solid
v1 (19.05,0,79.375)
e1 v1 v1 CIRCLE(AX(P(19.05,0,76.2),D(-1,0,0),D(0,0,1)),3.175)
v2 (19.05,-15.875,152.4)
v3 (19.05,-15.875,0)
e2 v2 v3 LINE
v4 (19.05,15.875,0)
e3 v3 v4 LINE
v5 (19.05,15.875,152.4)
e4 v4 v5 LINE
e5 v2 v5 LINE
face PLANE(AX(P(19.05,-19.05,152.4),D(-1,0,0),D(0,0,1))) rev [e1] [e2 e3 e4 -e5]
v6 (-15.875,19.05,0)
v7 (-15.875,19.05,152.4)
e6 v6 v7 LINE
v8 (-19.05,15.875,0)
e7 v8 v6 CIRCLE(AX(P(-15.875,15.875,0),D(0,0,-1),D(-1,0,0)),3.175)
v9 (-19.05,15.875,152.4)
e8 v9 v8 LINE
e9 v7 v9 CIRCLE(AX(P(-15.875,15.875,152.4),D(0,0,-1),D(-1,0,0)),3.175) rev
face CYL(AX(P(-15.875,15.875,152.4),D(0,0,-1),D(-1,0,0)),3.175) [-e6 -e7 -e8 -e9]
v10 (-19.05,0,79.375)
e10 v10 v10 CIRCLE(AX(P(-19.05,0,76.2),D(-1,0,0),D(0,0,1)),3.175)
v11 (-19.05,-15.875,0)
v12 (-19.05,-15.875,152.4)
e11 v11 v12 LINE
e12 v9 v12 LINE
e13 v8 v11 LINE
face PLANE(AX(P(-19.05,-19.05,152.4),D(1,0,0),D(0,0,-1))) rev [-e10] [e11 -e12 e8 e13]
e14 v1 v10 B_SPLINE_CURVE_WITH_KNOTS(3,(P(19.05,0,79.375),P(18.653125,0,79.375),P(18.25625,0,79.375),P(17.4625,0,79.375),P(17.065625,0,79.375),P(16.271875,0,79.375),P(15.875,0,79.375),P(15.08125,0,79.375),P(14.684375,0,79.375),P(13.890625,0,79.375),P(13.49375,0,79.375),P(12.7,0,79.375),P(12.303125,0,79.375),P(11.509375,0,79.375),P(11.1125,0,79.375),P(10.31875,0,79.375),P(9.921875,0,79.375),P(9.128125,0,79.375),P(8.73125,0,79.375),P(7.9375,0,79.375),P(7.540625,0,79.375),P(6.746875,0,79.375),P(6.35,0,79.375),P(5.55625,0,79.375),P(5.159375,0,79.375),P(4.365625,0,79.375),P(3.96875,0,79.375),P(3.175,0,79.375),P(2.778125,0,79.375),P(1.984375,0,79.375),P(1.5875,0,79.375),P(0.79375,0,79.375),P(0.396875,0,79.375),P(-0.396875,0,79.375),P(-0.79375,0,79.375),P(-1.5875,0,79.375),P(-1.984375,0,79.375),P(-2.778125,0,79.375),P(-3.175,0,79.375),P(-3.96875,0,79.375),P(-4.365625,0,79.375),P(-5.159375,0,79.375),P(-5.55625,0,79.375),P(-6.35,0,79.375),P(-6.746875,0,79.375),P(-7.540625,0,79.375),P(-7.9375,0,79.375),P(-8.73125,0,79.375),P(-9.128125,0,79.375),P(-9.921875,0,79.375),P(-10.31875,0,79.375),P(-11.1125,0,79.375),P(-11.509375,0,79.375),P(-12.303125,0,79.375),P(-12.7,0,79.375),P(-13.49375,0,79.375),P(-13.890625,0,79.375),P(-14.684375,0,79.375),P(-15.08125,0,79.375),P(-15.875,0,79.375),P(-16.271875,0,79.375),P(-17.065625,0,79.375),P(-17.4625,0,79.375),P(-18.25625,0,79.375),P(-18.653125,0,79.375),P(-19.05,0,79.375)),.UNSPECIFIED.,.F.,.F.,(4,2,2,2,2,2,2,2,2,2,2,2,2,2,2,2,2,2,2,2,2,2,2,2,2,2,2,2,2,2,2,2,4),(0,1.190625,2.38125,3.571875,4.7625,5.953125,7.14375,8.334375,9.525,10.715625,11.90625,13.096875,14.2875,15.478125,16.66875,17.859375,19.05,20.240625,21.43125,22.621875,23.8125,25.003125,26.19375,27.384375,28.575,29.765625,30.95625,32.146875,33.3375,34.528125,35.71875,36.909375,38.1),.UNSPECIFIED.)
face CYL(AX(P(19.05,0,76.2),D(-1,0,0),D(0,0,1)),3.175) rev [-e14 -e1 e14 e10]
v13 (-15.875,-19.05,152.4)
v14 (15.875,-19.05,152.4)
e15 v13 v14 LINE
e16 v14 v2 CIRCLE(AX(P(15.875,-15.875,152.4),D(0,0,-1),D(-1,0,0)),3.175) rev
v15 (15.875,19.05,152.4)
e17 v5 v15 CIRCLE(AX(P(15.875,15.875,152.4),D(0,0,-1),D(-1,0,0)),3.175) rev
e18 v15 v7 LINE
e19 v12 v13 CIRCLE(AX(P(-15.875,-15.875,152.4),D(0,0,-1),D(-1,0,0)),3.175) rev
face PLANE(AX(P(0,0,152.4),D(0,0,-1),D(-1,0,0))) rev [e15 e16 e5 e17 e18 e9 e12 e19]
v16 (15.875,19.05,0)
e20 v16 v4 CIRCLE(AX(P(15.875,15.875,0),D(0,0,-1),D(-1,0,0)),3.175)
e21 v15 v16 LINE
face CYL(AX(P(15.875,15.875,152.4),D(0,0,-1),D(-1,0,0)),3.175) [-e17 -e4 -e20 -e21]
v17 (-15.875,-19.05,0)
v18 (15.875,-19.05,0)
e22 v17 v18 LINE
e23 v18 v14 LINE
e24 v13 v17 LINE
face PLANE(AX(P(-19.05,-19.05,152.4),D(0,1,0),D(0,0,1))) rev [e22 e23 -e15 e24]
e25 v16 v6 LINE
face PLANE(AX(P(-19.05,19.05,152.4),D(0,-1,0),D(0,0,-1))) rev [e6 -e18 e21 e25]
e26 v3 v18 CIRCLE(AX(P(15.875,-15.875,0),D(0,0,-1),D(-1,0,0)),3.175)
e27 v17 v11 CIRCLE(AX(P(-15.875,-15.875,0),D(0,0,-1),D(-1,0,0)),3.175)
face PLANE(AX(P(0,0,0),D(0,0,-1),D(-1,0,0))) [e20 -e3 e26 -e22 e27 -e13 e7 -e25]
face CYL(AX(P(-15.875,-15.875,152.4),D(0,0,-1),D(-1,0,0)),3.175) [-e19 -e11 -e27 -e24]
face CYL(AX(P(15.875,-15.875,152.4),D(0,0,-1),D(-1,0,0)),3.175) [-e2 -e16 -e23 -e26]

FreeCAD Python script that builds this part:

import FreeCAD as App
import Part
import Sketcher
Q = App.Units.Quantity


def edges_at(feature, points):
    """Names of the edges that pass closest to the given points."""
    edges = feature.Shape.Edges
    near = lambda p: min(range(len(edges)), key=lambda i: edges[i].distToShape(Part.Vertex(*p))[0])
    return sorted({f"Edge{near(p) + 1}" for p in points})

doc = App.newDocument("Part")
body = doc.addObject("PartDesign::Body", "Body")

# Sketch on XY plane
sketch1 = body.newObject("Sketcher::SketchObject", "Sketch")
sketch1.AttachmentSupport = (doc.getObject("XY_Plane"), [""])
sketch1.MapMode = "FlatFace"
sketch1.addGeometry([
    Part.LineSegment(App.Vector(-19, 19, 0), App.Vector(-19, -19, 0)),
    Part.LineSegment(App.Vector(-19, -19, 0), App.Vector(19, -19, 0)),
    Part.LineSegment(App.Vector(19, -19, 0), App.Vector(19, 19, 0)),
    Part.LineSegment(App.Vector(19, 19, 0), App.Vector(-19, 19, 0)),
], False)
sketch1.addConstraint([
    Sketcher.Constraint("Coincident", 0, 2, 1, 1),
    Sketcher.Constraint("Coincident", 1, 2, 2, 1),
    Sketcher.Constraint("Coincident", 2, 2, 3, 1),
    Sketcher.Constraint("Coincident", 3, 2, 0, 1),
    Sketcher.Constraint("Vertical", 0),
    Sketcher.Constraint("Horizontal", 1),
    Sketcher.Constraint("Vertical", 2),
    Sketcher.Constraint("Horizontal", 3),
    Sketcher.Constraint("Symmetric", 0, 2, 2, 2, -1, 1),
    Sketcher.Constraint("Equal", 3, 0),
    Sketcher.Constraint("DistanceX", 1, 1, 1, 2, Q("1.5 in")),
])
pad1 = body.newObject("PartDesign::Pad", "Pad")
pad1.Profile = sketch1
pad1.Length = Q("6 in")
doc.recompute()

fillet = body.newObject("PartDesign::Fillet", "Fillet")
fillet.Base = (pad1, edges_at(pad1, [
    (19.05, -19.05, 76.2),
    (-19.05, -19.05, 76.2),
    (-19.05, 19.05, 76.2),
    (19.05, 19.05, 76.2),
]))
fillet.Radius = Q("0.125 in")

# Sketch on YZ plane
sketch2 = body.newObject("Sketcher::SketchObject", "Sketch001")
sketch2.AttachmentSupport = (doc.getObject("YZ_Plane"), [""])
sketch2.MapMode = "FlatFace"
sketch2.AttachmentOffset = App.Placement(App.Vector(0, 0, -0.75 * 25.4), App.Rotation())
sketch2.addGeometry(Part.Circle(App.Vector(0, 76.2, 0), App.Vector(0, 0, 1), 3.2), False)
sketch2.addConstraint([
    Sketcher.Constraint("PointOnObject", 0, 3, -2),
    Sketcher.Constraint("Diameter", 0, Q("0.25 in")),
    Sketcher.Constraint("DistanceY", -1, 1, 0, 3, Q("3 in")),
])
pocket1 = body.newObject("PartDesign::Pocket", "Pocket")
pocket1.Profile = sketch2
pocket1.Type = "ThroughAll"
pocket1.Reversed = True

doc.recompute()
